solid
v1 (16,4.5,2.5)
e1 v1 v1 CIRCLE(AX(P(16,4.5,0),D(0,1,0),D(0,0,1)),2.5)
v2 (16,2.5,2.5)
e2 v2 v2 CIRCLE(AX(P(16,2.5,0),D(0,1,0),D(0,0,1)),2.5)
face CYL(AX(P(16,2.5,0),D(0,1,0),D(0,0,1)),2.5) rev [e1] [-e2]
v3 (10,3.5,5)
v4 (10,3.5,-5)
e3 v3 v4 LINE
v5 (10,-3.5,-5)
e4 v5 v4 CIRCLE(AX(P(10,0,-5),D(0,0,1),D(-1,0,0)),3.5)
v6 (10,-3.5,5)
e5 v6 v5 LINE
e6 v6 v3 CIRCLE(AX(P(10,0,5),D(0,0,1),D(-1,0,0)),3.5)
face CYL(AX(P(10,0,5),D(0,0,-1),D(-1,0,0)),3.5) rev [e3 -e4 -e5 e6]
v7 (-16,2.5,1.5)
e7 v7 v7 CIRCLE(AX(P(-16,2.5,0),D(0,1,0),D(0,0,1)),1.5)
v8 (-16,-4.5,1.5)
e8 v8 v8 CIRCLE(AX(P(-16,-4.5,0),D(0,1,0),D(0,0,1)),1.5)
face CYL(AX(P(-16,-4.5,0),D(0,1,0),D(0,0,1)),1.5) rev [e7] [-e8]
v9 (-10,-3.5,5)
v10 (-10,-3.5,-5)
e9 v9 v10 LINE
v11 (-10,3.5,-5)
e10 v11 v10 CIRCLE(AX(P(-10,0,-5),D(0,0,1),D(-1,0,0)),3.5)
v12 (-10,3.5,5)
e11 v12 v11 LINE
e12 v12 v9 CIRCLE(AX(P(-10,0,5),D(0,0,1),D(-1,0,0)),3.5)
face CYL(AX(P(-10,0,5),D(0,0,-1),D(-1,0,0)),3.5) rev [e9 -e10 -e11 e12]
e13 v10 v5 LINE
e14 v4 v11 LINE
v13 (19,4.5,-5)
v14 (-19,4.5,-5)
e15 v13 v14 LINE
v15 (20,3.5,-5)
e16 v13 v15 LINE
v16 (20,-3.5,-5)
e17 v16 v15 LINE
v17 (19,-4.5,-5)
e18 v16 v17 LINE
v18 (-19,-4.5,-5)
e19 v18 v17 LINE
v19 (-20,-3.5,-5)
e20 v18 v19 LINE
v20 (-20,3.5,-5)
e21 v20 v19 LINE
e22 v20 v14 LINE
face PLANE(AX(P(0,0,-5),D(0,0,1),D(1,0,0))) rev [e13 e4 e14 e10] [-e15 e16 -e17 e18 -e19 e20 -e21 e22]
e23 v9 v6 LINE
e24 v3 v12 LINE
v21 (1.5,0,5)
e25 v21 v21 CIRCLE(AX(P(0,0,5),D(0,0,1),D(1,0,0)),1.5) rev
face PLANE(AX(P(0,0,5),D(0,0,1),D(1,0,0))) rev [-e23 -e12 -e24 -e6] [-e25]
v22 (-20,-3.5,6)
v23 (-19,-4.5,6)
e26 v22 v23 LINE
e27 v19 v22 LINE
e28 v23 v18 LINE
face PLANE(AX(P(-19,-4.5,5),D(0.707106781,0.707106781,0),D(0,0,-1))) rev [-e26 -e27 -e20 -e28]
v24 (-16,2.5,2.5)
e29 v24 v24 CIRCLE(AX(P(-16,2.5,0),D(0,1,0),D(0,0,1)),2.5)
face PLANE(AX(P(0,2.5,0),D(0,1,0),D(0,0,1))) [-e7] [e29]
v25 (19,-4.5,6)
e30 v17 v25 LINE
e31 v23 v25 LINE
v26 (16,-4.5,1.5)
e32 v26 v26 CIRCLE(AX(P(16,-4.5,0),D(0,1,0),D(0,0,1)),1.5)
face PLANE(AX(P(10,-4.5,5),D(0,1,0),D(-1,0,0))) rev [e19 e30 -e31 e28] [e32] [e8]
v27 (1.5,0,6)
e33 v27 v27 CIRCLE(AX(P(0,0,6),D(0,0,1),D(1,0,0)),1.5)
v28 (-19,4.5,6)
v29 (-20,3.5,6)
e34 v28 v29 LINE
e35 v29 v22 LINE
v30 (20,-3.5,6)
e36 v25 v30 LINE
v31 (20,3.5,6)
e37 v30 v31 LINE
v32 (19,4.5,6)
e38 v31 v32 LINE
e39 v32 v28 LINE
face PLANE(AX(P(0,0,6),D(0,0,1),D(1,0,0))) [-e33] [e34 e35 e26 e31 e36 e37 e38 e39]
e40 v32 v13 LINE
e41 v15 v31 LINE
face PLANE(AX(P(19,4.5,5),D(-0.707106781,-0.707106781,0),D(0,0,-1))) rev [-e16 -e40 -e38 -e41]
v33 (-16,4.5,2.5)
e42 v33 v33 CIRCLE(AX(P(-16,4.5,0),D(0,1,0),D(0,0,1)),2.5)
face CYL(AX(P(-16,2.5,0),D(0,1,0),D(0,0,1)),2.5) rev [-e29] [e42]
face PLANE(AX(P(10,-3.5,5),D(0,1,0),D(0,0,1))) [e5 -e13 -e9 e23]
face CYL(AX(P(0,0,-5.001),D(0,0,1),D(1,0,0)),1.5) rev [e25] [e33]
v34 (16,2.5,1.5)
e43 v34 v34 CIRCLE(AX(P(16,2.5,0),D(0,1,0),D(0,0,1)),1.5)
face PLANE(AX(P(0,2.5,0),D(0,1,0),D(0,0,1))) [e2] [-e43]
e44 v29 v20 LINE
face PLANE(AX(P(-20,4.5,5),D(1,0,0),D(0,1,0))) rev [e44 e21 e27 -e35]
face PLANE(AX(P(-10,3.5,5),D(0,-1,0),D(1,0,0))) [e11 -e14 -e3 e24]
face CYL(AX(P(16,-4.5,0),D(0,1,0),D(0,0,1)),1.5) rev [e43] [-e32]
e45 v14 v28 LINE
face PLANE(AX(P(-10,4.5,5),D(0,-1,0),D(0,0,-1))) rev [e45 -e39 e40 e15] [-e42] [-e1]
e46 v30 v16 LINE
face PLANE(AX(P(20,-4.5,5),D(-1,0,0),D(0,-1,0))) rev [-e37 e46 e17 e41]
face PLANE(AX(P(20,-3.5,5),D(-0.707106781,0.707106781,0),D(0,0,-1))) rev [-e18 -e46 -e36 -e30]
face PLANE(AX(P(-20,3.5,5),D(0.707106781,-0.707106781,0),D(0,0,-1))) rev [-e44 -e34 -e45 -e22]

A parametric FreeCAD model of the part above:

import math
import FreeCAD as App
import Part
import Sketcher
from FreeCAD import Vector


def edges_at(feature, points):
    """Names of the edges that pass closest to the given points."""
    edges = feature.Shape.Edges
    near = lambda p: min(range(len(edges)), key=lambda i: edges[i].distToShape(Part.Vertex(*p))[0])
    return sorted({f"Edge{near(p) + 1}" for p in points})


def add_polygon(sketch, points):
    """Adds a closed chain of lines whose ends are joined by coincident constraints."""
    first, n = sketch.GeometryCount, len(points)
    for a, b in zip(points, points[1:] + points[:1]):
        sketch.addGeometry(Part.LineSegment(App.Vector(*a, 0), App.Vector(*b, 0)), False)
    for i in range(n):
        sketch.addConstraint(Sketcher.Constraint("Coincident", first + i, 2, first + (i + 1) % n, 1))

doc = App.newDocument("Part")
body = doc.addObject("PartDesign::Body", "Body")

# Sketch on XY plane
sketch1 = doc.addObject("Sketcher::SketchObject", "Sketch")
body.addObject(sketch1)
sketch1.AttachmentSupport = (doc.XY_Plane, [""])
sketch1.MapMode = "FlatFace"
add_polygon(sketch1, [(20, 4.5), (-20, 4.5), (-20, -4.5), (20, -4.5)])  # lines 0-3
sketch1.addGeometry(Part.LineSegment(Vector(-10, 3.5, 0), Vector(10, 3.5, 0)), False)  # 4
sketch1.addGeometry(Part.ArcOfCircle(Part.Circle(Vector(10, 0, 0), Vector(0, 0, 1), 3.5), math.radians(-90), math.radians(90)), False)  # 5
sketch1.addGeometry(Part.LineSegment(Vector(10, -3.5, 0), Vector(-10, -3.5, 0)), False)  # 6
sketch1.addGeometry(Part.ArcOfCircle(Part.Circle(Vector(-10, 0, 0), Vector(0, 0, 1), 3.5), math.radians(90), math.radians(270)), False)  # 7
sketch1.addConstraint([
    Sketcher.Constraint("Tangent", 4, 2, 5, 2),
    Sketcher.Constraint("Tangent", 5, 1, 6, 1),
    Sketcher.Constraint("Tangent", 6, 2, 7, 2),
    Sketcher.Constraint("Tangent", 7, 1, 4, 1),
    Sketcher.Constraint("Horizontal", 0),
    Sketcher.Constraint("Vertical", 1),
    Sketcher.Constraint("Horizontal", 2),
    Sketcher.Constraint("Vertical", 3),
    Sketcher.Constraint("Horizontal", 4),
    Sketcher.Constraint("Horizontal", 6),
    Sketcher.Constraint("Symmetric", 5, 3, 7, 3, -1, 1),
    Sketcher.Constraint("Symmetric", 0, 2, 2, 2, -1, 1),
    Sketcher.Constraint("Radius", 5, 3.5),
    Sketcher.Constraint("DistanceX", 0, 2, 0, 1, 40.0),
    Sketcher.Constraint("DistanceX", 4, 1, 4, 2, 20.0),
    Sketcher.Constraint("DistanceY", 1, 2, 1, 1, 9.0),
])
pad1 = doc.addObject("PartDesign::Pad", "Pad")
body.addObject(pad1)
pad1.Profile = sketch1
pad1.Length = 10
pad1.Midplane = True

# Sketch on XY plane
sketch2 = doc.addObject("Sketcher::SketchObject", "Sketch001")
body.addObject(sketch2)
sketch2.AttachmentSupport = (doc.XY_Plane, [""])
sketch2.MapMode = "FlatFace"
sketch2.AttachmentOffset = App.Placement(Vector(0, 0, 5), App.Rotation())
add_polygon(sketch2, [(-20, 4.5), (-20, -4.5), (20, -4.5), (20, 4.5)])  # lines 0-3
sketch2.addConstraint([
    Sketcher.Constraint("Vertical", 0),
    Sketcher.Constraint("Horizontal", 1),
    Sketcher.Constraint("Vertical", 2),
    Sketcher.Constraint("Horizontal", 3),
    Sketcher.Constraint("Symmetric", 0, 2, 2, 2, -1, 1),
    Sketcher.Constraint("DistanceX", 1, 1, 1, 2, 40.0),
    Sketcher.Constraint("DistanceY", 0, 2, 0, 1, 9.0),
])
pad2 = doc.addObject("PartDesign::Pad", "Pad001")
body.addObject(pad2)
pad2.Profile = sketch2
pad2.Length = 1

# Sketch on XY plane
sketch3 = doc.addObject("Sketcher::SketchObject", "Sketch002")
body.addObject(sketch3)
sketch3.AttachmentSupport = (doc.XY_Plane, [""])
sketch3.MapMode = "FlatFace"
sketch3.AttachmentOffset = App.Placement(Vector(0, 0, 6), App.Rotation())
sketch3.addGeometry(Part.Circle(Vector(0, 0, 0), Vector(0, 0, 1), 1.5), False)
sketch3.addConstraint([
    Sketcher.Constraint("Coincident", 0, 3, -1, 1),
    Sketcher.Constraint("Diameter", 0, 3.0),
])
pocket1 = doc.addObject("PartDesign::Pocket", "Pocket")
body.addObject(pocket1)
pocket1.Profile = sketch3
pocket1.Type = "UpToFirst"

# Sketch on XZ plane
sketch4 = doc.addObject("Sketcher::SketchObject", "Sketch003")
body.addObject(sketch4)
sketch4.AttachmentSupport = (doc.XZ_Plane, [""])
sketch4.MapMode = "FlatFace"
sketch4.AttachmentOffset = App.Placement(Vector(0, 0, -4.5), App.Rotation())
sketch4.addGeometry([
    Part.Circle(Vector(16, 0, 0), Vector(0, 0, 1), 2.5),
    Part.Circle(Vector(-16, 0, 0), Vector(0, 0, 1), 2.5),
], False)
sketch4.addConstraint([
    Sketcher.Constraint("Equal", 0, 1),
    Sketcher.Constraint("Symmetric", 0, 3, 1, 3, -1, 1),
    Sketcher.Constraint("PointOnObject", 0, 3, -1),
    Sketcher.Constraint("Diameter", 0, 5.0),
    Sketcher.Constraint("DistanceX", -1, 1, 0, 3, 16.0),
])
pocket2 = doc.addObject("PartDesign::Pocket", "Pocket001")
body.addObject(pocket2)
pocket2.Profile = sketch4
pocket2.Length = 2
pocket2.Reversed = True

# Sketch on XZ plane
sketch5 = doc.addObject("Sketcher::SketchObject", "Sketch004")
body.addObject(sketch5)
sketch5.AttachmentSupport = (doc.XZ_Plane, [""])
sketch5.MapMode = "FlatFace"
sketch5.AttachmentOffset = App.Placement(Vector(0, 0, -4.5), App.Rotation())
sketch5.addGeometry([
    Part.Circle(Vector(-16, 0, 0), Vector(0, 0, 1), 1.5),
    Part.Circle(Vector(16, 0, 0), Vector(0, 0, 1), 1.5),
], False)
sketch5.addConstraint([
    Sketcher.Constraint("Equal", 0, 1),
    Sketcher.Constraint("Symmetric", 0, 3, 1, 3, -1, 1),
    Sketcher.Constraint("PointOnObject", 0, 3, -1),
    Sketcher.Constraint("Diameter", 0, 3.0),
    Sketcher.Constraint("DistanceX", 0, 3, -1, 1, 16.0),
])
pocket3 = doc.addObject("PartDesign::Pocket", "Pocket002")
body.addObject(pocket3)
pocket3.Profile = sketch5
pocket3.Type = "ThroughAll"
pocket3.Reversed = True
doc.recompute()

chamfer = doc.addObject("PartDesign::Chamfer", "Chamfer")
body.addObject(chamfer)
chamfer.Base = (pocket3, edges_at(pocket3, [
    (20, 4.5, 0.5),
    (20, -4.5, 0.5),
    (-20, -4.5, 0.5),
    (-20, 4.5, 0.5),
]))
chamfer.Size = 1

doc.recompute()
